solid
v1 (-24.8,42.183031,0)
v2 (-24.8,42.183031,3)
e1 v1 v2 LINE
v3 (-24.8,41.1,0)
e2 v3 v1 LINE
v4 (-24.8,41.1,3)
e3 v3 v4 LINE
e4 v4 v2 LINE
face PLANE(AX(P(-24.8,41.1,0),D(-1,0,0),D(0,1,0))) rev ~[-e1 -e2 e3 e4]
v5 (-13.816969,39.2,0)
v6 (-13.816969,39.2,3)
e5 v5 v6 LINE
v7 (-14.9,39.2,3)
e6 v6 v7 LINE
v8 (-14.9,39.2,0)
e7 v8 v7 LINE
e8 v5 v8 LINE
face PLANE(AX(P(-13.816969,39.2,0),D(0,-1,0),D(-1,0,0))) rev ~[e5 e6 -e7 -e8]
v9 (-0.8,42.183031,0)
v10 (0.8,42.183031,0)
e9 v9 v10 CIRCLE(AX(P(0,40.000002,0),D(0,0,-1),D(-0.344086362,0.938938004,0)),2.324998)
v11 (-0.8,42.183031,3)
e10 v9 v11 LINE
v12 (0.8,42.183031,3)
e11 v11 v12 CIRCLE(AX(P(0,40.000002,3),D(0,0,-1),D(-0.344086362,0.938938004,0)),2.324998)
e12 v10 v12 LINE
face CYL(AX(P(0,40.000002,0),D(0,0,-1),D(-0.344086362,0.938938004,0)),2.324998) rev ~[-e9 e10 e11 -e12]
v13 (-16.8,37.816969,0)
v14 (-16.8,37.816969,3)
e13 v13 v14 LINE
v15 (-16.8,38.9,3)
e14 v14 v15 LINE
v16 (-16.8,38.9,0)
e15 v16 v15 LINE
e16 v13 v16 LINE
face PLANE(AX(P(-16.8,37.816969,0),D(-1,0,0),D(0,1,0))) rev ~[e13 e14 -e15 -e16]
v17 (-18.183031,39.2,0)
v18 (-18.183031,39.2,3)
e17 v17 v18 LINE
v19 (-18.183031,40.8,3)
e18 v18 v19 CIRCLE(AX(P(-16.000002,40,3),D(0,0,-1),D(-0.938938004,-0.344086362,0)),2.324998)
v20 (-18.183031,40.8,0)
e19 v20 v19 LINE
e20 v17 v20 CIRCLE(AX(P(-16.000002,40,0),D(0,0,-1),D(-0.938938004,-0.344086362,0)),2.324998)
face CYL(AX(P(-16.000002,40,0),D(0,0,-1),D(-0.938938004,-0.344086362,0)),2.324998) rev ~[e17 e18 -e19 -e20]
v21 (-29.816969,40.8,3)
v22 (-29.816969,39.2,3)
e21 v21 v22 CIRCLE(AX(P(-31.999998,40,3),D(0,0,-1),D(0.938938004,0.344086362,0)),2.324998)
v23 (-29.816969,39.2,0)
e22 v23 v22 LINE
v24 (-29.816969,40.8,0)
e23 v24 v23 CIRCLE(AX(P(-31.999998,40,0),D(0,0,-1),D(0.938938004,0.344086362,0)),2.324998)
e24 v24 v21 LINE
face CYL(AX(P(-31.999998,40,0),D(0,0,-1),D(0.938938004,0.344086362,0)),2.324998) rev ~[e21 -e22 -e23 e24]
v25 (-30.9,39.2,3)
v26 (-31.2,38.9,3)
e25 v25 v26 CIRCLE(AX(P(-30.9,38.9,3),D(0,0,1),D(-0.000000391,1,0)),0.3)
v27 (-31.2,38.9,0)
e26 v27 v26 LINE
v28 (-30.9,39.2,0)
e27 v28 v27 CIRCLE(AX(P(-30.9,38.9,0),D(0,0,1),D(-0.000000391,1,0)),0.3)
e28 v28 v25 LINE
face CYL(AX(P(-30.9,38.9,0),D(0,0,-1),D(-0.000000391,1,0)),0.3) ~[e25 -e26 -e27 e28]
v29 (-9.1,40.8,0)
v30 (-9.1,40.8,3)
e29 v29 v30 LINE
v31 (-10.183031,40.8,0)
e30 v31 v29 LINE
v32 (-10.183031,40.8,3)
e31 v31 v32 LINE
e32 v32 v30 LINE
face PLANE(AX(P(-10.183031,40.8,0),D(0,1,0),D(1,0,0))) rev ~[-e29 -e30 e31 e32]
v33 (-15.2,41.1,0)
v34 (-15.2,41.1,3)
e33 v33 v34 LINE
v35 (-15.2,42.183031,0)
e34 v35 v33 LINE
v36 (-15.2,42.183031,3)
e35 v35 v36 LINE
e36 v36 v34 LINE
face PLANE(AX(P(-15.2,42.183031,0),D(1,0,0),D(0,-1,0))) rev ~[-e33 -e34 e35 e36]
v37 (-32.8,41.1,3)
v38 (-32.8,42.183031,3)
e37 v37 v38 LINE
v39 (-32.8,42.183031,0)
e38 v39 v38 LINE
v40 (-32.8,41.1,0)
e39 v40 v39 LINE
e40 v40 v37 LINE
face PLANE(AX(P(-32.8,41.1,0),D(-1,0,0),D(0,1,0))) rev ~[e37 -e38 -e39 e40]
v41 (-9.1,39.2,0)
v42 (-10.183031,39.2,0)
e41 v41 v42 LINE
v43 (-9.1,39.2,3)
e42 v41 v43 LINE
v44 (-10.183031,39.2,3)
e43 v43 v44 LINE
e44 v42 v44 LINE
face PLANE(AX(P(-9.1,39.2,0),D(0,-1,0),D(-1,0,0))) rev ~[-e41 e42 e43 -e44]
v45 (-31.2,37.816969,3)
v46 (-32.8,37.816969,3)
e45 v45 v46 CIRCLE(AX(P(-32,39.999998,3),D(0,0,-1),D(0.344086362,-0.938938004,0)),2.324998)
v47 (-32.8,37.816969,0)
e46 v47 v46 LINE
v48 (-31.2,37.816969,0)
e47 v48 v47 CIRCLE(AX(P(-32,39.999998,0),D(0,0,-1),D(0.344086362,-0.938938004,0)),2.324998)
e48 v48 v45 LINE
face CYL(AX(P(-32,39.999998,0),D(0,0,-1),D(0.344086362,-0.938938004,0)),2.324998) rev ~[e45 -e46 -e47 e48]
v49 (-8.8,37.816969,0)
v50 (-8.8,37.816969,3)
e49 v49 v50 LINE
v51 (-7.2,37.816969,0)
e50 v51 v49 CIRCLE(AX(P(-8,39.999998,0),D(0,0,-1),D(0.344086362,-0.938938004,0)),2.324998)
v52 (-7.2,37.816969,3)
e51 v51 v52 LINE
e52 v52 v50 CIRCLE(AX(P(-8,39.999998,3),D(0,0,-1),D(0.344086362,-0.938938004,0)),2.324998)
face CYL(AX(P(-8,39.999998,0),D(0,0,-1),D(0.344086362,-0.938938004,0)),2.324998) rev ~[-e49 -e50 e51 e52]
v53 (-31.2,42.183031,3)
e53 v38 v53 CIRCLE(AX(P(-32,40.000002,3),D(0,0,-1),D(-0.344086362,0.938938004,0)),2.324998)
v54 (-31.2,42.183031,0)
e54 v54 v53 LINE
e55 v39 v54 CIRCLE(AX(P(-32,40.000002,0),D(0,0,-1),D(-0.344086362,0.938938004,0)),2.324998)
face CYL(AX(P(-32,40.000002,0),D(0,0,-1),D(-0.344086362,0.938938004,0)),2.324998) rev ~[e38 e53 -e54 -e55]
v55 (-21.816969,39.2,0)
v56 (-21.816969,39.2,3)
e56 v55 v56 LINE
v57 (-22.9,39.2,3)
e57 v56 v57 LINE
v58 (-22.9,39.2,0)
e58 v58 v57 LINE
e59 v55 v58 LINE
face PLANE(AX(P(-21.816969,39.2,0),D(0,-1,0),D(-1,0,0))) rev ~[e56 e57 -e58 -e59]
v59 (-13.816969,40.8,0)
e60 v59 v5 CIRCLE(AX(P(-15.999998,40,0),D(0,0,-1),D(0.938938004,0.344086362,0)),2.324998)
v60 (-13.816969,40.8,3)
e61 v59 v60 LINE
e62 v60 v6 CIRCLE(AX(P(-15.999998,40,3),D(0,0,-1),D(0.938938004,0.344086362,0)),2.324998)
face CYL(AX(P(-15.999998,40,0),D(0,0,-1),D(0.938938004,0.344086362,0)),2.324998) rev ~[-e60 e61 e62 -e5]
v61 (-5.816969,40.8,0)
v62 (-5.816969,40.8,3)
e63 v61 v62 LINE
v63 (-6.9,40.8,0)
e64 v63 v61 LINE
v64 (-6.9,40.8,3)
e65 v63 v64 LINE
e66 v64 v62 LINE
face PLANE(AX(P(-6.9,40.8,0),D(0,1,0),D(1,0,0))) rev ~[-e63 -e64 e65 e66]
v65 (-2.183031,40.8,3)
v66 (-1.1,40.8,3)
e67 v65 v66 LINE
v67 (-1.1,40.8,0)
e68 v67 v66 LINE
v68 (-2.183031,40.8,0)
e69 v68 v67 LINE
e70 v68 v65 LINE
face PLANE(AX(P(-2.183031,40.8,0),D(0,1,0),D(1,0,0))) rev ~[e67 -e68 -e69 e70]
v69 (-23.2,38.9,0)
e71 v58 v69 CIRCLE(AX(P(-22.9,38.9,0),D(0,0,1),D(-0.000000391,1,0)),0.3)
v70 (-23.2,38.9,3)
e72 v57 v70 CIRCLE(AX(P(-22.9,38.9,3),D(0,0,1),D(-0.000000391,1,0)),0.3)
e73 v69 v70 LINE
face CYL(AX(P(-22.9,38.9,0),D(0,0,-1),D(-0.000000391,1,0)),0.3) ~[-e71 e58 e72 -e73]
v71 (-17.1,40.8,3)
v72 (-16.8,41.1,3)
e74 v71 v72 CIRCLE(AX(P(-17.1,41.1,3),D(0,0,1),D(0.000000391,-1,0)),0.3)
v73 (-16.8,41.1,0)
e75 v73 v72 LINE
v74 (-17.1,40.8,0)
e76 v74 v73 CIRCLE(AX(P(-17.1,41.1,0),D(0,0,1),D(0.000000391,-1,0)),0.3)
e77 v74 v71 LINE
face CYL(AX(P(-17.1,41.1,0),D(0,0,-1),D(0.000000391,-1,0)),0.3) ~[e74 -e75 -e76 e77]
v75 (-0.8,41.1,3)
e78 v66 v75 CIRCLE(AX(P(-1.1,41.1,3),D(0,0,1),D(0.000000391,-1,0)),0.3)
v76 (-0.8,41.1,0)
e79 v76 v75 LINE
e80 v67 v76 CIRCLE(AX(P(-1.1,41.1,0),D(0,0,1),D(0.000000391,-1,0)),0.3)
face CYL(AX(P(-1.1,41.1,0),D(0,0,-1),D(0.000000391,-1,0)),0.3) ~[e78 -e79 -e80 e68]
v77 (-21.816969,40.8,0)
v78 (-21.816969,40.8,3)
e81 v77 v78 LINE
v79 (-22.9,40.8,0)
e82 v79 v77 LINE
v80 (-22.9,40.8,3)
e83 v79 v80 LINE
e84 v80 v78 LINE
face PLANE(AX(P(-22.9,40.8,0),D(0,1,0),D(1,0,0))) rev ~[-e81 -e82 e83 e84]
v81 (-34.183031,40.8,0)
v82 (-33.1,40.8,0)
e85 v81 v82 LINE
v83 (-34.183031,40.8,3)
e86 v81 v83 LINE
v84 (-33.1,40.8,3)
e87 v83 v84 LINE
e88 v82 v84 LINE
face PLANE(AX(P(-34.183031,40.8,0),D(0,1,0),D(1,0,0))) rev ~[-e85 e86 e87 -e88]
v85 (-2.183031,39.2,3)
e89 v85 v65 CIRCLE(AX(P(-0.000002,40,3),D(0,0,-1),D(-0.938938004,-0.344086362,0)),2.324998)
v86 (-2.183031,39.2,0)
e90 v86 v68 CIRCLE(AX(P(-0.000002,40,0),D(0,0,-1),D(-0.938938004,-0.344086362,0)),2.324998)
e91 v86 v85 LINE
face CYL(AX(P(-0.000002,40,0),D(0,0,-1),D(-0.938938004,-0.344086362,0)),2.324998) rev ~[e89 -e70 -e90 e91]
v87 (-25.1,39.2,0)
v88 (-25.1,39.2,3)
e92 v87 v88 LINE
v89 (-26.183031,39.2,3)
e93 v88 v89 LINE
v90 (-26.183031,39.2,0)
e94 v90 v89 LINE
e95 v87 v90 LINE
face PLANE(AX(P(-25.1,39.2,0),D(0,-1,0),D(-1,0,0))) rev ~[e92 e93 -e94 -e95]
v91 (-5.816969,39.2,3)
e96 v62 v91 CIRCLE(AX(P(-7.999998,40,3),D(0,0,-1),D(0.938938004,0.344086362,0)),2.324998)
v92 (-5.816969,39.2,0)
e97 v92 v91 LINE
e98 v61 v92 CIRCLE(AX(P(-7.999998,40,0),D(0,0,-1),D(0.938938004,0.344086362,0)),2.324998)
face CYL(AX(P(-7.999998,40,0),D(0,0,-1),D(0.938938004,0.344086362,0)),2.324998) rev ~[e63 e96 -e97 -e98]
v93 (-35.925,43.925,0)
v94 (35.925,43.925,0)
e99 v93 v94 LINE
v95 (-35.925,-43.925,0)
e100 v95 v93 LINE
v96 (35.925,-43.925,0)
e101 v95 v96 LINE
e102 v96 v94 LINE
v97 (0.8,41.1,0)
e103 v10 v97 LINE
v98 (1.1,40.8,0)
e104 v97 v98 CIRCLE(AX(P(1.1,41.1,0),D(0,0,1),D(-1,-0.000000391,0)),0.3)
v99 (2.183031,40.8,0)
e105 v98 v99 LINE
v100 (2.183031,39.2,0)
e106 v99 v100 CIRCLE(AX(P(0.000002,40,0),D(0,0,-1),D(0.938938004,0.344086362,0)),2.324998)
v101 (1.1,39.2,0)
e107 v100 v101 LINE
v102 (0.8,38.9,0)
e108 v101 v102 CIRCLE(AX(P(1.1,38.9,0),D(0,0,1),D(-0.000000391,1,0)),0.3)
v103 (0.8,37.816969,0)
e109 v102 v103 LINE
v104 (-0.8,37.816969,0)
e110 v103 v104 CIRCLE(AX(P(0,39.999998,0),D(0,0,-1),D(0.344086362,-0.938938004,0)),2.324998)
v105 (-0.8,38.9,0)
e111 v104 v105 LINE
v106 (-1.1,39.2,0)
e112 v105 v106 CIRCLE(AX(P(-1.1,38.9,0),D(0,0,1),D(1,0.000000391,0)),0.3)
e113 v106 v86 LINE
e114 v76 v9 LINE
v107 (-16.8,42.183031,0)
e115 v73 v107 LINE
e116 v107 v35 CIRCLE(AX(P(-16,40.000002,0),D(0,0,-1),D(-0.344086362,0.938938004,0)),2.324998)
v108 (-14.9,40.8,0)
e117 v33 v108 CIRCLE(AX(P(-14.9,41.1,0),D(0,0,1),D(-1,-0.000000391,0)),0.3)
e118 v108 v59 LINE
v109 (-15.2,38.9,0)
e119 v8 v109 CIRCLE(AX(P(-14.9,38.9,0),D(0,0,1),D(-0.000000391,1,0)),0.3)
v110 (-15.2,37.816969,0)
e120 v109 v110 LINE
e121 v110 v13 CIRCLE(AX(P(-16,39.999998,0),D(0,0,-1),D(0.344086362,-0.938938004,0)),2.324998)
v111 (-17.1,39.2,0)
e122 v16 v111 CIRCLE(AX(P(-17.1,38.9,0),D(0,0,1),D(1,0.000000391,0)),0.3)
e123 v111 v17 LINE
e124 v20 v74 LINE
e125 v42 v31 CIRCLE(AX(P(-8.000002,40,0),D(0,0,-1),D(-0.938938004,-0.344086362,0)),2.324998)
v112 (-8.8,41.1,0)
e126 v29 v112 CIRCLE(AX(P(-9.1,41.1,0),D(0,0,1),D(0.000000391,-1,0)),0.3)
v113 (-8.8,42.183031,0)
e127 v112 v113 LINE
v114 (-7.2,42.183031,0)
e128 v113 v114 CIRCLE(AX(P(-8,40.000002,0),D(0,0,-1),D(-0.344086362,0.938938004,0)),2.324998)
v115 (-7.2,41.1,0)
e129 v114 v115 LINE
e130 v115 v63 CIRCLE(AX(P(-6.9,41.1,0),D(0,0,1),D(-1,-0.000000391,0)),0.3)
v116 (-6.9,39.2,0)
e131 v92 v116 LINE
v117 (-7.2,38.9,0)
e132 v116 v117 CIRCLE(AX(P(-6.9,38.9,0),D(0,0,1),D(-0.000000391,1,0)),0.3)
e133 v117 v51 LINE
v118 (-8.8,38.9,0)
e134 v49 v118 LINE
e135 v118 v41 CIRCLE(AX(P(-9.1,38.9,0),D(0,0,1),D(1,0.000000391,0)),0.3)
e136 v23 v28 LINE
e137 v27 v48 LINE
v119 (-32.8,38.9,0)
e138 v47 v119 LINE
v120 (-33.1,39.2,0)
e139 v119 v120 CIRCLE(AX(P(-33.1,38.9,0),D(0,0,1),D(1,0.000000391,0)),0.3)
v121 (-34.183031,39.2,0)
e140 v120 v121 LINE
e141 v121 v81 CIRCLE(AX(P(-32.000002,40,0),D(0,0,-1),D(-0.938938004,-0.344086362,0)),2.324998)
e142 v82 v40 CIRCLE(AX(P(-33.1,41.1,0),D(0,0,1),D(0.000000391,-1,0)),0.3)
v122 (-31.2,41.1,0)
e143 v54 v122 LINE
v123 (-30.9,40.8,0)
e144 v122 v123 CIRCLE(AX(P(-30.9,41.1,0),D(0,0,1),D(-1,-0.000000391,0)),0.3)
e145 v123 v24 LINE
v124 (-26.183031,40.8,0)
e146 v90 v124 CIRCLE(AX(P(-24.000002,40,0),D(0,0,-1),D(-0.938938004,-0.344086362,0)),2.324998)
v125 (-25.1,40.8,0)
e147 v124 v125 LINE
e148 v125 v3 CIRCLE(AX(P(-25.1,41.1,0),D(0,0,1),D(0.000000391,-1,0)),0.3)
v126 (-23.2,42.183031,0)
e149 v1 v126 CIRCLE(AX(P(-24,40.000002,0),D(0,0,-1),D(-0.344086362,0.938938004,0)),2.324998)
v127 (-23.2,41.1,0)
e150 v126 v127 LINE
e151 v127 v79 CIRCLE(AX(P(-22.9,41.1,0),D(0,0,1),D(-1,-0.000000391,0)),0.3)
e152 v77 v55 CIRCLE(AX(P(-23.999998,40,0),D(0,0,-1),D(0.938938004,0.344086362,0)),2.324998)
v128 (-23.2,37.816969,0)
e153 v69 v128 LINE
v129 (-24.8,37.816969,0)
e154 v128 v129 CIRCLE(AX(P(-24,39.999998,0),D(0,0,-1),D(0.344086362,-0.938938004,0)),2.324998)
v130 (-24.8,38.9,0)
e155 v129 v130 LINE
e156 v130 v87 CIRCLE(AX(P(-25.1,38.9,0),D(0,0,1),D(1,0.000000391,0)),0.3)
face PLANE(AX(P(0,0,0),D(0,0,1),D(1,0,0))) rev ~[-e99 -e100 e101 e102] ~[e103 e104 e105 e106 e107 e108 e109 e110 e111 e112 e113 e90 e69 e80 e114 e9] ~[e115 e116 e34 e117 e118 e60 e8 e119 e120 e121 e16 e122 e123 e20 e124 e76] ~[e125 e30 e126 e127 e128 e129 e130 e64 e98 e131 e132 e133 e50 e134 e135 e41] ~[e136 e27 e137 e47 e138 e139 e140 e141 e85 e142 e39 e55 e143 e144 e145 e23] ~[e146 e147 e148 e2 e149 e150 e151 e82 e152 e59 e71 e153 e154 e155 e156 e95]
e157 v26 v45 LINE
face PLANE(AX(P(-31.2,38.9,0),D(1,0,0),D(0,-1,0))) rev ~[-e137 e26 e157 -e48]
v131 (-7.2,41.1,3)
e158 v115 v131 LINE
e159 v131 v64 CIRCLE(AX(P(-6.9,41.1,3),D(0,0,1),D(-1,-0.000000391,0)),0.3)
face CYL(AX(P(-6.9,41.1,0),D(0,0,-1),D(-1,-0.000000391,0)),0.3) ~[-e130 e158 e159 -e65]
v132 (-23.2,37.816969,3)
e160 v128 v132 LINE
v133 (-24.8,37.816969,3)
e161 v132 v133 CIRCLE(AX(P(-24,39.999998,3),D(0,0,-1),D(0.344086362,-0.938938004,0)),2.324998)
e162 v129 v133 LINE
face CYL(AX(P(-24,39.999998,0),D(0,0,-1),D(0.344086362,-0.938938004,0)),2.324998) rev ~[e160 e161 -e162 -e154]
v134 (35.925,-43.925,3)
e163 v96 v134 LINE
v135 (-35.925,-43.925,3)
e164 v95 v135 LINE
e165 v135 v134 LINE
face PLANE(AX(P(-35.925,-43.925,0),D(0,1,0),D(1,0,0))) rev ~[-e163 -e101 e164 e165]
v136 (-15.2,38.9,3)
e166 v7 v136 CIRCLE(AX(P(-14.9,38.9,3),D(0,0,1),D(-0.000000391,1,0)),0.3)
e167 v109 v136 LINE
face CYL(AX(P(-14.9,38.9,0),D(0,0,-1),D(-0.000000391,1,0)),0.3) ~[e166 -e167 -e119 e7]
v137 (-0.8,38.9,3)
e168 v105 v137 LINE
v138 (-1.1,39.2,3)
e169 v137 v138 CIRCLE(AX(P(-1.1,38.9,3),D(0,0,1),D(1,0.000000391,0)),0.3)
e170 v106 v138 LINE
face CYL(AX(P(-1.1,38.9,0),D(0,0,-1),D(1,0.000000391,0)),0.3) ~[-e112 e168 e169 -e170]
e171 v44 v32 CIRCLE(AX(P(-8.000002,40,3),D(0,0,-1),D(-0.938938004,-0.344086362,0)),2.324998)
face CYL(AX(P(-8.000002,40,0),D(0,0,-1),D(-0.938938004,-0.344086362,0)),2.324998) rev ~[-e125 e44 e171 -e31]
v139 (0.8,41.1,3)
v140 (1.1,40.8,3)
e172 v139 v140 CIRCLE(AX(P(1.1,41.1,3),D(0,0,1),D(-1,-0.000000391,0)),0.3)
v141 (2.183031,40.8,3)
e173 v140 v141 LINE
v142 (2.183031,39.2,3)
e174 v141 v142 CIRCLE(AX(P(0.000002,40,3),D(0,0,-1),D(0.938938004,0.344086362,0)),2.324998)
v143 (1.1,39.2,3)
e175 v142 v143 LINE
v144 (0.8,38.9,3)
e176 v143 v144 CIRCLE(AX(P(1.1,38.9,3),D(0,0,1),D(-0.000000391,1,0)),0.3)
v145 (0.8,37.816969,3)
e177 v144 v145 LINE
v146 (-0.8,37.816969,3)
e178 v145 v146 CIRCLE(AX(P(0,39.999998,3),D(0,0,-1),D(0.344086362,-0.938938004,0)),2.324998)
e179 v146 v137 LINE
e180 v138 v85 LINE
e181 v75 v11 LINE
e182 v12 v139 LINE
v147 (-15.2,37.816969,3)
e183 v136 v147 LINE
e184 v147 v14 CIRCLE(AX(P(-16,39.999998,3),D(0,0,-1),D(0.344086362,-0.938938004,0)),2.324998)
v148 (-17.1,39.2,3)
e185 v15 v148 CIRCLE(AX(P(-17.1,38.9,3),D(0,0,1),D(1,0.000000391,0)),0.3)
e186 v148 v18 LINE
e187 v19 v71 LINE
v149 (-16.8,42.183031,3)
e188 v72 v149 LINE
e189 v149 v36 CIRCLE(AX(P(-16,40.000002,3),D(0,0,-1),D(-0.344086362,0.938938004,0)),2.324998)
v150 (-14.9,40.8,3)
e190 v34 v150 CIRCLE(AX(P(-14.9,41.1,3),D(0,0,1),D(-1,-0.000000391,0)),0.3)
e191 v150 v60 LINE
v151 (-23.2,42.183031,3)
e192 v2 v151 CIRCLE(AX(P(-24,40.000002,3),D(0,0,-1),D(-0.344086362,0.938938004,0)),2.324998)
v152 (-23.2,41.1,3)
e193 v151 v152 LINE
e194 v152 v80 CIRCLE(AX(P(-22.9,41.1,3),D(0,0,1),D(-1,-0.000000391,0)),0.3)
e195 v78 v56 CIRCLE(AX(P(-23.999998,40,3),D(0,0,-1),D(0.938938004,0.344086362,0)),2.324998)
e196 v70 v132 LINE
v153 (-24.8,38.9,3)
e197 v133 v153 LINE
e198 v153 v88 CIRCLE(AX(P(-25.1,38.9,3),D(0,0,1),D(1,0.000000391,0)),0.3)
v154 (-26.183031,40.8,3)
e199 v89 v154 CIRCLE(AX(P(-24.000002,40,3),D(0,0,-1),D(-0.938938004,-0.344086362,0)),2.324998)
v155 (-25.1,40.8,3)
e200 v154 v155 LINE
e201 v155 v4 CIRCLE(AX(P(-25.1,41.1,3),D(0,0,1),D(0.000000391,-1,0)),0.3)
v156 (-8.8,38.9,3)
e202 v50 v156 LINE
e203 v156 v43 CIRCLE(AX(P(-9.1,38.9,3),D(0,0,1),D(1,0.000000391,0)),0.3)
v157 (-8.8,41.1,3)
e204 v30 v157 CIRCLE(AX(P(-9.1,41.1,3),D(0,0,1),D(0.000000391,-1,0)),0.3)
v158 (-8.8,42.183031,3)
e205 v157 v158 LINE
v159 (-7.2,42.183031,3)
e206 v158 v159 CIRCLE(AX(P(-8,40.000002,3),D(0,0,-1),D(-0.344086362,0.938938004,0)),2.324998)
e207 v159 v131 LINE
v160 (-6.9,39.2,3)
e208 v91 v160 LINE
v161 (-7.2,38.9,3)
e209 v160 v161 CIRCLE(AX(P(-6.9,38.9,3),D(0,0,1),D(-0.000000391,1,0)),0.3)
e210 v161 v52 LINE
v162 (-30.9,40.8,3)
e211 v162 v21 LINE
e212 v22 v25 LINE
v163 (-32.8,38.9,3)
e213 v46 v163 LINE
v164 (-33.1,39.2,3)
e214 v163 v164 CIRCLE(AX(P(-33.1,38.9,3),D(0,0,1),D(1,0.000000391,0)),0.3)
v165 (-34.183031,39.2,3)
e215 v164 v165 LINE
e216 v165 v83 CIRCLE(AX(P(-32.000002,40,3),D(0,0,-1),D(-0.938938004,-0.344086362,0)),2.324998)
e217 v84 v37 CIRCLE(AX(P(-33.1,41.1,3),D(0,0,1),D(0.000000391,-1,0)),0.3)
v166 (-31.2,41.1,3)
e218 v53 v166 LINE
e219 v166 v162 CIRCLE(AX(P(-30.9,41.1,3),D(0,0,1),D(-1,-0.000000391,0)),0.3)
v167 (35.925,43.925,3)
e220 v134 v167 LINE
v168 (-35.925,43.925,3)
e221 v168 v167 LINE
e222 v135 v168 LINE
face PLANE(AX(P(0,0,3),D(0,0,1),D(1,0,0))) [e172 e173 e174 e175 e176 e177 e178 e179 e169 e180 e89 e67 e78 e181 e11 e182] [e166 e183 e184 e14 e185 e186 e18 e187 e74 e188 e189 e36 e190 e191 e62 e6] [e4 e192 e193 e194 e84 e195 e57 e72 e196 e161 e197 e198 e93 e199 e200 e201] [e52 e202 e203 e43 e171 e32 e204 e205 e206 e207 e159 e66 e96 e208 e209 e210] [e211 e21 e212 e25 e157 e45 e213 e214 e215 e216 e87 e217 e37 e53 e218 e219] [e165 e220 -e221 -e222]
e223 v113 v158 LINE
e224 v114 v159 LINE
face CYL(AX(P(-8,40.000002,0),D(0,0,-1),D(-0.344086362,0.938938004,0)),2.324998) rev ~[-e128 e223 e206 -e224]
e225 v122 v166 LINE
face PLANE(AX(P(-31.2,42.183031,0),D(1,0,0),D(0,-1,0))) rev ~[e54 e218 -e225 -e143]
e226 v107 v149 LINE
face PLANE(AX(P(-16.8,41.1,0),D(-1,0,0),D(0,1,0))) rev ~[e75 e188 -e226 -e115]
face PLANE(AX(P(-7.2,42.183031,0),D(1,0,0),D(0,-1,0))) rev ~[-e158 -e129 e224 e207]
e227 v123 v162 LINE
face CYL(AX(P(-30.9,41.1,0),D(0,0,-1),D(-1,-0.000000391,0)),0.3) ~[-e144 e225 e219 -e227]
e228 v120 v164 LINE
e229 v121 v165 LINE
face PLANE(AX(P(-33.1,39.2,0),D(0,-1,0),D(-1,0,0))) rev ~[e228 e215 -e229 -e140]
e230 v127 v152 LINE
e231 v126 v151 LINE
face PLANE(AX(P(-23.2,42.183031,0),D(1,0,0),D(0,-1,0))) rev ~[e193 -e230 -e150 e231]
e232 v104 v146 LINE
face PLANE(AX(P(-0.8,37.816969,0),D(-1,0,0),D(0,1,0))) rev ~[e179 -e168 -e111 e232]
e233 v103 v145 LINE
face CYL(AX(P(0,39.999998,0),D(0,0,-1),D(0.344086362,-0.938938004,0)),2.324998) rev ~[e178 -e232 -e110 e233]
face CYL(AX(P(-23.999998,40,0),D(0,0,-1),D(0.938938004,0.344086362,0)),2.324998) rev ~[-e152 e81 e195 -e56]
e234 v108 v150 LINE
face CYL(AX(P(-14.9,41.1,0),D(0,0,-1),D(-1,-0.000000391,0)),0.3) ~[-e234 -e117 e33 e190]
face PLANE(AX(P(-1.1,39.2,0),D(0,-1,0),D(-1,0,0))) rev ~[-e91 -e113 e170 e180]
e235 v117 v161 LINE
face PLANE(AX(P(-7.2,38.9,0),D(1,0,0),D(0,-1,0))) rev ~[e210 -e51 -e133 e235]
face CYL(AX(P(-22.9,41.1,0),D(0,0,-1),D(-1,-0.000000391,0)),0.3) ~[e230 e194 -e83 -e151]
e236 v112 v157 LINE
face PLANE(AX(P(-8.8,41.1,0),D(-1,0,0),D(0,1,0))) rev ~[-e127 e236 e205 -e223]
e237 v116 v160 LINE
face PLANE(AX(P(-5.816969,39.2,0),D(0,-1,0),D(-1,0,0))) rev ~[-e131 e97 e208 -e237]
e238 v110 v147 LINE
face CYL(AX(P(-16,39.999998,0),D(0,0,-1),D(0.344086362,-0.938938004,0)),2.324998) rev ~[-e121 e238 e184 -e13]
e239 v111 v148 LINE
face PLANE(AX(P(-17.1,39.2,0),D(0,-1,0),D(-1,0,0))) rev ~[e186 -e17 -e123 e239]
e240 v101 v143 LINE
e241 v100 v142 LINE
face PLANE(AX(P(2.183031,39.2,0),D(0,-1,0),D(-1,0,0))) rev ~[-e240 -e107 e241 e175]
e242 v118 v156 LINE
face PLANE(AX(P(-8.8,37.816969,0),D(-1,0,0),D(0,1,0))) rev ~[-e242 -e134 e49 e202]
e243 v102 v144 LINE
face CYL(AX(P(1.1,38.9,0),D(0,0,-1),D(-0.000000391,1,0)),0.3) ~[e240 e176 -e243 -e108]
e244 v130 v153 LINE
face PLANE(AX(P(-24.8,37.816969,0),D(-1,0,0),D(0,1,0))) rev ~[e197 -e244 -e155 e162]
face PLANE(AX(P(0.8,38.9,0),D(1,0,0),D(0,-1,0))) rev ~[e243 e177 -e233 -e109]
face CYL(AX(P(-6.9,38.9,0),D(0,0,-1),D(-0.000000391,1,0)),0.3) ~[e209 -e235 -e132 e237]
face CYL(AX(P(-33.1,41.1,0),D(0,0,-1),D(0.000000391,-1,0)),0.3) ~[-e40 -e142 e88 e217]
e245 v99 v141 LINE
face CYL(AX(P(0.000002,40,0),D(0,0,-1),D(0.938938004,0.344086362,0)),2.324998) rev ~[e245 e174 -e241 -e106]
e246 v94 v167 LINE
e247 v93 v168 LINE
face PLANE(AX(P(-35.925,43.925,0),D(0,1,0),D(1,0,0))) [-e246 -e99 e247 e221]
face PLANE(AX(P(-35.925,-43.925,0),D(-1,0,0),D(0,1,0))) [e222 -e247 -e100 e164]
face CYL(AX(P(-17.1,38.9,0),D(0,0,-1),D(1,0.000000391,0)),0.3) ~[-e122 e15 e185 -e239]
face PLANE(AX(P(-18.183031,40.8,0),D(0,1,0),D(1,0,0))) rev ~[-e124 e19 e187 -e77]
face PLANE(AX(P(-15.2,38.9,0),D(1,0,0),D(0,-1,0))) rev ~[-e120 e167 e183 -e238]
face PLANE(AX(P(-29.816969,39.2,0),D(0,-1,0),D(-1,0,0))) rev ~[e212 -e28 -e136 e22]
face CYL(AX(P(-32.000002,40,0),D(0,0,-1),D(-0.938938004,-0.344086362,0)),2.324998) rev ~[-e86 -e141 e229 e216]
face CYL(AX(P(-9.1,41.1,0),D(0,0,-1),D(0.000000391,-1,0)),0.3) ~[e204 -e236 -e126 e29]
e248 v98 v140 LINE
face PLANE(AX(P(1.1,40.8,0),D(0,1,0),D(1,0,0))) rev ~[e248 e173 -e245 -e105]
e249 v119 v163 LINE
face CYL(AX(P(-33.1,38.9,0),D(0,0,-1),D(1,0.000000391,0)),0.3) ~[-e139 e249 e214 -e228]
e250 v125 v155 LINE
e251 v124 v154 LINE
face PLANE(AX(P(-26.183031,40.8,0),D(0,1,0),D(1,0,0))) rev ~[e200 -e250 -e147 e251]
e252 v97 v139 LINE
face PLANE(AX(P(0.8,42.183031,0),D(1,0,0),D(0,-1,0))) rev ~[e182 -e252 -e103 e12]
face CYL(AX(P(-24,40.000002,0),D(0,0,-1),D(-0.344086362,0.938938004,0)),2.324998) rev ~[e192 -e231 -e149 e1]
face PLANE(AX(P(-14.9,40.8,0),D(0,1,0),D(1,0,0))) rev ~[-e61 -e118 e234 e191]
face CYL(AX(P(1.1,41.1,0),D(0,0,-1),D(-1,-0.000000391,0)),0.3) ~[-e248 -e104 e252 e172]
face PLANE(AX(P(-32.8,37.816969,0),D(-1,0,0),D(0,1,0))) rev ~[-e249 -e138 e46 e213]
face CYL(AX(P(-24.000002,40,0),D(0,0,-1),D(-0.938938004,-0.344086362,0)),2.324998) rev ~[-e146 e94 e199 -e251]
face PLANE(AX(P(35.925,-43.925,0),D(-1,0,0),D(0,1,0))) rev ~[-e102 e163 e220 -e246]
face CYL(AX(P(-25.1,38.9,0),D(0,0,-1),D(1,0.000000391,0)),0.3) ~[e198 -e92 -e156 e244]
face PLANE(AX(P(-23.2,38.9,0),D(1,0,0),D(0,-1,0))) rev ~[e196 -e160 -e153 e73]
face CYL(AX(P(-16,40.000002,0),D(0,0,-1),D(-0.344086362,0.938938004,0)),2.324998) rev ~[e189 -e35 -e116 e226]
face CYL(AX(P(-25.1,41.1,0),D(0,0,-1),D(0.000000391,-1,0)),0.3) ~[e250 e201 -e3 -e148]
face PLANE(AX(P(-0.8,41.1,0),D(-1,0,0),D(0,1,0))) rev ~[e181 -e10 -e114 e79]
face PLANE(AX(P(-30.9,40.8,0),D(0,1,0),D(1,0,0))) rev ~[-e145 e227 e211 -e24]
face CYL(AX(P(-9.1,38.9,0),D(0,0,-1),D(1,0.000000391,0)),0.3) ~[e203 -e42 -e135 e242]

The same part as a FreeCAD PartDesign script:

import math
import FreeCAD as App
import Part
import Sketcher

V = App.Vector

doc = App.newDocument("Part")
body = doc.addObject("PartDesign::Body", "Body")

# Sketch on XY plane
sketch1 = body.newObject("Sketcher::SketchObject", "Sketch")
sketch1.AttachmentSupport = (doc.getObject("XY_Plane"), [""])
sketch1.MapMode = "FlatFace"
sketch1.addGeometry(Part.LineSegment(V(-35.925, 43.925, 0), V(-35.925, -43.925, 0)), False)
sketch1.addGeometry(Part.LineSegment(V(-35.925, -43.925, 0), V(35.925, -43.925, 0)), False)
sketch1.addGeometry(Part.LineSegment(V(35.925, -43.925, 0), V(35.925, 43.925, 0)), False)
sketch1.addGeometry(Part.LineSegment(V(35.925, 43.925, 0), V(-35.925, 43.925, 0)), False)
sketch1.addGeometry(Part.LineSegment(V(-32.8, 41.1, 0), V(-32.8, 42.183031, 0)), False)
sketch1.addGeometry(Part.ArcOfCircle(Part.Circle(V(-32, 40.000002, 0), V(0, 0, 1), 2.324998), math.radians(69.873966), math.radians(110.126034)), False)
sketch1.addGeometry(Part.LineSegment(V(-31.2, 42.183031, 0), V(-31.2, 41.1, 0)), False)
sketch1.addGeometry(Part.ArcOfCircle(Part.Circle(V(-30.9, 41.1, 0), V(0, 0, 1), 0.3), math.radians(-179.999978), math.radians(-90.000022)), False)
sketch1.addGeometry(Part.LineSegment(V(-30.9, 40.8, 0), V(-29.816969, 40.8, 0)), False)
sketch1.addGeometry(Part.ArcOfCircle(Part.Circle(V(-31.999998, 40, 0), V(0, 0, 1), 2.324998), math.radians(-20.126034), math.radians(20.126034)), False)
sketch1.addGeometry(Part.LineSegment(V(-29.816969, 39.2, 0), V(-30.9, 39.2, 0)), False)
sketch1.addGeometry(Part.ArcOfCircle(Part.Circle(V(-30.9, 38.9, 0), V(0, 0, 1), 0.3), math.radians(90.000022), math.radians(179.999978)), False)
sketch1.addGeometry(Part.LineSegment(V(-31.2, 38.9, 0), V(-31.2, 37.816969, 0)), False)
sketch1.addGeometry(Part.ArcOfCircle(Part.Circle(V(-32, 39.999998, 0), V(0, 0, 1), 2.324998), math.radians(-110.126034), math.radians(-69.873966)), False)
sketch1.addGeometry(Part.LineSegment(V(-32.8, 37.816969, 0), V(-32.8, 38.9, 0)), False)
sketch1.addGeometry(Part.ArcOfCircle(Part.Circle(V(-33.1, 38.9, 0), V(0, 0, 1), 0.3), math.radians(0.000022), math.radians(89.999978)), False)
sketch1.addGeometry(Part.LineSegment(V(-33.1, 39.2, 0), V(-34.183031, 39.2, 0)), False)
sketch1.addGeometry(Part.ArcOfCircle(Part.Circle(V(-32.000002, 40, 0), V(0, 0, 1), 2.324998), math.radians(159.873966), math.radians(200.126034)), False)
sketch1.addGeometry(Part.LineSegment(V(-34.183031, 40.8, 0), V(-33.1, 40.8, 0)), False)
sketch1.addGeometry(Part.ArcOfCircle(Part.Circle(V(-33.1, 41.1, 0), V(0, 0, 1), 0.3), math.radians(-89.999978), math.radians(-0.000022)), False)
sketch1.addGeometry(Part.LineSegment(V(-24.8, 41.1, 0), V(-24.8, 42.183031, 0)), False)
sketch1.addGeometry(Part.ArcOfCircle(Part.Circle(V(-24, 40.000002, 0), V(0, 0, 1), 2.324998), math.radians(69.873966), math.radians(110.126034)), False)
sketch1.addGeometry(Part.LineSegment(V(-23.2, 42.183031, 0), V(-23.2, 41.1, 0)), False)
sketch1.addGeometry(Part.ArcOfCircle(Part.Circle(V(-22.9, 41.1, 0), V(0, 0, 1), 0.3), math.radians(-179.999978), math.radians(-90.000022)), False)
sketch1.addGeometry(Part.LineSegment(V(-22.9, 40.8, 0), V(-21.816969, 40.8, 0)), False)
sketch1.addGeometry(Part.ArcOfCircle(Part.Circle(V(-23.999998, 40, 0), V(0, 0, 1), 2.324998), math.radians(-20.126034), math.radians(20.126034)), False)
sketch1.addGeometry(Part.LineSegment(V(-21.816969, 39.2, 0), V(-22.9, 39.2, 0)), False)
sketch1.addGeometry(Part.ArcOfCircle(Part.Circle(V(-22.9, 38.9, 0), V(0, 0, 1), 0.3), math.radians(90.000022), math.radians(179.999978)), False)
sketch1.addGeometry(Part.LineSegment(V(-23.2, 38.9, 0), V(-23.2, 37.816969, 0)), False)
sketch1.addGeometry(Part.ArcOfCircle(Part.Circle(V(-24, 39.999998, 0), V(0, 0, 1), 2.324998), math.radians(-110.126034), math.radians(-69.873966)), False)
sketch1.addGeometry(Part.LineSegment(V(-24.8, 37.816969, 0), V(-24.8, 38.9, 0)), False)
sketch1.addGeometry(Part.ArcOfCircle(Part.Circle(V(-25.1, 38.9, 0), V(0, 0, 1), 0.3), math.radians(0.000022), math.radians(89.999978)), False)
sketch1.addGeometry(Part.LineSegment(V(-25.1, 39.2, 0), V(-26.183031, 39.2, 0)), False)
sketch1.addGeometry(Part.ArcOfCircle(Part.Circle(V(-24.000002, 40, 0), V(0, 0, 1), 2.324998), math.radians(159.873966), math.radians(200.126034)), False)
sketch1.addGeometry(Part.LineSegment(V(-26.183031, 40.8, 0), V(-25.1, 40.8, 0)), False)
sketch1.addGeometry(Part.ArcOfCircle(Part.Circle(V(-25.1, 41.1, 0), V(0, 0, 1), 0.3), math.radians(-89.999978), math.radians(-0.000022)), False)
sketch1.addGeometry(Part.LineSegment(V(-16.8, 41.1, 0), V(-16.8, 42.183031, 0)), False)
sketch1.addGeometry(Part.ArcOfCircle(Part.Circle(V(-16, 40.000002, 0), V(0, 0, 1), 2.324998), math.radians(69.873966), math.radians(110.126034)), False)
sketch1.addGeometry(Part.LineSegment(V(-15.2, 42.183031, 0), V(-15.2, 41.1, 0)), False)
sketch1.addGeometry(Part.ArcOfCircle(Part.Circle(V(-14.9, 41.1, 0), V(0, 0, 1), 0.3), math.radians(-179.999978), math.radians(-90.000022)), False)
sketch1.addGeometry(Part.LineSegment(V(-14.9, 40.8, 0), V(-13.816969, 40.8, 0)), False)
sketch1.addGeometry(Part.ArcOfCircle(Part.Circle(V(-15.999998, 40, 0), V(0, 0, 1), 2.324998), math.radians(-20.126034), math.radians(20.126034)), False)
sketch1.addGeometry(Part.LineSegment(V(-13.816969, 39.2, 0), V(-14.9, 39.2, 0)), False)
sketch1.addGeometry(Part.ArcOfCircle(Part.Circle(V(-14.9, 38.9, 0), V(0, 0, 1), 0.3), math.radians(90.000022), math.radians(179.999978)), False)
sketch1.addGeometry(Part.LineSegment(V(-15.2, 38.9, 0), V(-15.2, 37.816969, 0)), False)
sketch1.addGeometry(Part.ArcOfCircle(Part.Circle(V(-16, 39.999998, 0), V(0, 0, 1), 2.324998), math.radians(-110.126034), math.radians(-69.873966)), False)
sketch1.addGeometry(Part.LineSegment(V(-16.8, 37.816969, 0), V(-16.8, 38.9, 0)), False)
sketch1.addGeometry(Part.ArcOfCircle(Part.Circle(V(-17.1, 38.9, 0), V(0, 0, 1), 0.3), math.radians(0.000022), math.radians(89.999978)), False)
sketch1.addGeometry(Part.LineSegment(V(-17.1, 39.2, 0), V(-18.183031, 39.2, 0)), False)
sketch1.addGeometry(Part.ArcOfCircle(Part.Circle(V(-16.000002, 40, 0), V(0, 0, 1), 2.324998), math.radians(159.873966), math.radians(200.126034)), False)
sketch1.addGeometry(Part.LineSegment(V(-18.183031, 40.8, 0), V(-17.1, 40.8, 0)), False)
sketch1.addGeometry(Part.ArcOfCircle(Part.Circle(V(-17.1, 41.1, 0), V(0, 0, 1), 0.3), math.radians(-89.999978), math.radians(-0.000022)), False)
sketch1.addGeometry(Part.LineSegment(V(-8.8, 41.1, 0), V(-8.8, 42.183031, 0)), False)
sketch1.addGeometry(Part.ArcOfCircle(Part.Circle(V(-8, 40.000002, 0), V(0, 0, 1), 2.324998), math.radians(69.873966), math.radians(110.126034)), False)
sketch1.addGeometry(Part.LineSegment(V(-7.2, 42.183031, 0), V(-7.2, 41.1, 0)), False)
sketch1.addGeometry(Part.ArcOfCircle(Part.Circle(V(-6.9, 41.1, 0), V(0, 0, 1), 0.3), math.radians(-179.999978), math.radians(-90.000022)), False)
sketch1.addGeometry(Part.LineSegment(V(-6.9, 40.8, 0), V(-5.816969, 40.8, 0)), False)
sketch1.addGeometry(Part.ArcOfCircle(Part.Circle(V(-7.999998, 40, 0), V(0, 0, 1), 2.324998), math.radians(-20.126034), math.radians(20.126034)), False)
sketch1.addGeometry(Part.LineSegment(V(-5.816969, 39.2, 0), V(-6.9, 39.2, 0)), False)
sketch1.addGeometry(Part.ArcOfCircle(Part.Circle(V(-6.9, 38.9, 0), V(0, 0, 1), 0.3), math.radians(90.000022), math.radians(179.999978)), False)
sketch1.addGeometry(Part.LineSegment(V(-7.2, 38.9, 0), V(-7.2, 37.816969, 0)), False)
sketch1.addGeometry(Part.ArcOfCircle(Part.Circle(V(-8, 39.999998, 0), V(0, 0, 1), 2.324998), math.radians(-110.126034), math.radians(-69.873966)), False)
sketch1.addGeometry(Part.LineSegment(V(-8.8, 37.816969, 0), V(-8.8, 38.9, 0)), False)
sketch1.addGeometry(Part.ArcOfCircle(Part.Circle(V(-9.1, 38.9, 0), V(0, 0, 1), 0.3), math.radians(0.000022), math.radians(89.999978)), False)
sketch1.addGeometry(Part.LineSegment(V(-9.1, 39.2, 0), V(-10.183031, 39.2, 0)), False)
sketch1.addGeometry(Part.ArcOfCircle(Part.Circle(V(-8.000002, 40, 0), V(0, 0, 1), 2.324998), math.radians(159.873966), math.radians(200.126034)), False)
sketch1.addGeometry(Part.LineSegment(V(-10.183031, 40.8, 0), V(-9.1, 40.8, 0)), False)
sketch1.addGeometry(Part.ArcOfCircle(Part.Circle(V(-9.1, 41.1, 0), V(0, 0, 1), 0.3), math.radians(-89.999978), math.radians(-0.000022)), False)
sketch1.addGeometry(Part.LineSegment(V(-0.8, 41.1, 0), V(-0.8, 42.183031, 0)), False)
sketch1.addGeometry(Part.ArcOfCircle(Part.Circle(V(0, 40.000002, 0), V(0, 0, 1), 2.324998), math.radians(69.873966), math.radians(110.126034)), False)
sketch1.addGeometry(Part.LineSegment(V(0.8, 42.183031, 0), V(0.8, 41.1, 0)), False)
sketch1.addGeometry(Part.ArcOfCircle(Part.Circle(V(1.1, 41.1, 0), V(0, 0, 1), 0.3), math.radians(-179.999978), math.radians(-90.000022)), False)
sketch1.addGeometry(Part.LineSegment(V(1.1, 40.8, 0), V(2.183031, 40.8, 0)), False)
sketch1.addGeometry(Part.ArcOfCircle(Part.Circle(V(0.000002, 40, 0), V(0, 0, 1), 2.324998), math.radians(-20.126034), math.radians(20.126034)), False)
sketch1.addGeometry(Part.LineSegment(V(2.183031, 39.2, 0), V(1.1, 39.2, 0)), False)
sketch1.addGeometry(Part.ArcOfCircle(Part.Circle(V(1.1, 38.9, 0), V(0, 0, 1), 0.3), math.radians(90.000022), math.radians(179.999978)), False)
sketch1.addGeometry(Part.LineSegment(V(0.8, 38.9, 0), V(0.8, 37.816969, 0)), False)
sketch1.addGeometry(Part.ArcOfCircle(Part.Circle(V(0, 39.999998, 0), V(0, 0, 1), 2.324998), math.radians(-110.126034), math.radians(-69.873966)), False)
sketch1.addGeometry(Part.LineSegment(V(-0.8, 37.816969, 0), V(-0.8, 38.9, 0)), False)
sketch1.addGeometry(Part.ArcOfCircle(Part.Circle(V(-1.1, 38.9, 0), V(0, 0, 1), 0.3), math.radians(0.000022), math.radians(89.999978)), False)
sketch1.addGeometry(Part.LineSegment(V(-1.1, 39.2, 0), V(-2.183031, 39.2, 0)), False)
sketch1.addGeometry(Part.ArcOfCircle(Part.Circle(V(-0.000002, 40, 0), V(0, 0, 1), 2.324998), math.radians(159.873966), math.radians(200.126034)), False)
sketch1.addGeometry(Part.LineSegment(V(-2.183031, 40.8, 0), V(-1.1, 40.8, 0)), False)
sketch1.addGeometry(Part.ArcOfCircle(Part.Circle(V(-1.1, 41.1, 0), V(0, 0, 1), 0.3), math.radians(-89.999978), math.radians(-0.000022)), False)
sketch1.addConstraint(Sketcher.Constraint("Coincident", 0, 2, 1, 1))
sketch1.addConstraint(Sketcher.Constraint("Coincident", 1, 2, 2, 1))
sketch1.addConstraint(Sketcher.Constraint("Coincident", 2, 2, 3, 1))
sketch1.addConstraint(Sketcher.Constraint("Coincident", 3, 2, 0, 1))
sketch1.addConstraint(Sketcher.Constraint("Coincident", 4, 2, 5, 2))
sketch1.addConstraint(Sketcher.Constraint("Coincident", 5, 1, 6, 1))
sketch1.addConstraint(Sketcher.Constraint("Tangent", 6, 2, 7, 1))
sketch1.addConstraint(Sketcher.Constraint("Tangent", 7, 2, 8, 1))
sketch1.addConstraint(Sketcher.Constraint("Coincident", 8, 2, 9, 2))
sketch1.addConstraint(Sketcher.Constraint("Coincident", 9, 1, 10, 1))
sketch1.addConstraint(Sketcher.Constraint("Tangent", 10, 2, 11, 1))
sketch1.addConstraint(Sketcher.Constraint("Tangent", 11, 2, 12, 1))
sketch1.addConstraint(Sketcher.Constraint("Coincident", 12, 2, 13, 2))
sketch1.addConstraint(Sketcher.Constraint("Coincident", 13, 1, 14, 1))
sketch1.addConstraint(Sketcher.Constraint("Tangent", 14, 2, 15, 1))
sketch1.addConstraint(Sketcher.Constraint("Tangent", 15, 2, 16, 1))
sketch1.addConstraint(Sketcher.Constraint("Coincident", 16, 2, 17, 2))
sketch1.addConstraint(Sketcher.Constraint("Coincident", 17, 1, 18, 1))
sketch1.addConstraint(Sketcher.Constraint("Tangent", 18, 2, 19, 1))
sketch1.addConstraint(Sketcher.Constraint("Tangent", 19, 2, 4, 1))
sketch1.addConstraint(Sketcher.Constraint("Coincident", 20, 2, 21, 2))
sketch1.addConstraint(Sketcher.Constraint("Coincident", 21, 1, 22, 1))
sketch1.addConstraint(Sketcher.Constraint("Tangent", 22, 2, 23, 1))
sketch1.addConstraint(Sketcher.Constraint("Tangent", 23, 2, 24, 1))
sketch1.addConstraint(Sketcher.Constraint("Coincident", 24, 2, 25, 2))
sketch1.addConstraint(Sketcher.Constraint("Coincident", 25, 1, 26, 1))
sketch1.addConstraint(Sketcher.Constraint("Tangent", 26, 2, 27, 1))
sketch1.addConstraint(Sketcher.Constraint("Tangent", 27, 2, 28, 1))
sketch1.addConstraint(Sketcher.Constraint("Coincident", 28, 2, 29, 2))
sketch1.addConstraint(Sketcher.Constraint("Coincident", 29, 1, 30, 1))
sketch1.addConstraint(Sketcher.Constraint("Tangent", 30, 2, 31, 1))
sketch1.addConstraint(Sketcher.Constraint("Tangent", 31, 2, 32, 1))
sketch1.addConstraint(Sketcher.Constraint("Coincident", 32, 2, 33, 2))
sketch1.addConstraint(Sketcher.Constraint("Coincident", 33, 1, 34, 1))
sketch1.addConstraint(Sketcher.Constraint("Tangent", 34, 2, 35, 1))
sketch1.addConstraint(Sketcher.Constraint("Tangent", 35, 2, 20, 1))
sketch1.addConstraint(Sketcher.Constraint("Coincident", 36, 2, 37, 2))
sketch1.addConstraint(Sketcher.Constraint("Coincident", 37, 1, 38, 1))
sketch1.addConstraint(Sketcher.Constraint("Tangent", 38, 2, 39, 1))
sketch1.addConstraint(Sketcher.Constraint("Tangent", 39, 2, 40, 1))
sketch1.addConstraint(Sketcher.Constraint("Coincident", 40, 2, 41, 2))
sketch1.addConstraint(Sketcher.Constraint("Coincident", 41, 1, 42, 1))
sketch1.addConstraint(Sketcher.Constraint("Tangent", 42, 2, 43, 1))
sketch1.addConstraint(Sketcher.Constraint("Tangent", 43, 2, 44, 1))
sketch1.addConstraint(Sketcher.Constraint("Coincident", 44, 2, 45, 2))
sketch1.addConstraint(Sketcher.Constraint("Coincident", 45, 1, 46, 1))
sketch1.addConstraint(Sketcher.Constraint("Tangent", 46, 2, 47, 1))
sketch1.addConstraint(Sketcher.Constraint("Tangent", 47, 2, 48, 1))
sketch1.addConstraint(Sketcher.Constraint("Coincident", 48, 2, 49, 2))
sketch1.addConstraint(Sketcher.Constraint("Coincident", 49, 1, 50, 1))
sketch1.addConstraint(Sketcher.Constraint("Tangent", 50, 2, 51, 1))
sketch1.addConstraint(Sketcher.Constraint("Tangent", 51, 2, 36, 1))
sketch1.addConstraint(Sketcher.Constraint("Coincident", 52, 2, 53, 2))
sketch1.addConstraint(Sketcher.Constraint("Coincident", 53, 1, 54, 1))
sketch1.addConstraint(Sketcher.Constraint("Tangent", 54, 2, 55, 1))
sketch1.addConstraint(Sketcher.Constraint("Tangent", 55, 2, 56, 1))
sketch1.addConstraint(Sketcher.Constraint("Coincident", 56, 2, 57, 2))
sketch1.addConstraint(Sketcher.Constraint("Coincident", 57, 1, 58, 1))
sketch1.addConstraint(Sketcher.Constraint("Tangent", 58, 2, 59, 1))
sketch1.addConstraint(Sketcher.Constraint("Tangent", 59, 2, 60, 1))
sketch1.addConstraint(Sketcher.Constraint("Coincident", 60, 2, 61, 2))
sketch1.addConstraint(Sketcher.Constraint("Coincident", 61, 1, 62, 1))
sketch1.addConstraint(Sketcher.Constraint("Tangent", 62, 2, 63, 1))
sketch1.addConstraint(Sketcher.Constraint("Tangent", 63, 2, 64, 1))
sketch1.addConstraint(Sketcher.Constraint("Coincident", 64, 2, 65, 2))
sketch1.addConstraint(Sketcher.Constraint("Coincident", 65, 1, 66, 1))
sketch1.addConstraint(Sketcher.Constraint("Tangent", 66, 2, 67, 1))
sketch1.addConstraint(Sketcher.Constraint("Tangent", 67, 2, 52, 1))
sketch1.addConstraint(Sketcher.Constraint("Coincident", 68, 2, 69, 2))
sketch1.addConstraint(Sketcher.Constraint("Coincident", 69, 1, 70, 1))
sketch1.addConstraint(Sketcher.Constraint("Tangent", 70, 2, 71, 1))
sketch1.addConstraint(Sketcher.Constraint("Tangent", 71, 2, 72, 1))
sketch1.addConstraint(Sketcher.Constraint("Coincident", 72, 2, 73, 2))
sketch1.addConstraint(Sketcher.Constraint("Coincident", 73, 1, 74, 1))
sketch1.addConstraint(Sketcher.Constraint("Tangent", 74, 2, 75, 1))
sketch1.addConstraint(Sketcher.Constraint("Tangent", 75, 2, 76, 1))
sketch1.addConstraint(Sketcher.Constraint("Coincident", 76, 2, 77, 2))
sketch1.addConstraint(Sketcher.Constraint("Coincident", 77, 1, 78, 1))
sketch1.addConstraint(Sketcher.Constraint("Tangent", 78, 2, 79, 1))
sketch1.addConstraint(Sketcher.Constraint("Tangent", 79, 2, 80, 1))
sketch1.addConstraint(Sketcher.Constraint("Coincident", 80, 2, 81, 2))
sketch1.addConstraint(Sketcher.Constraint("Coincident", 81, 1, 82, 1))
sketch1.addConstraint(Sketcher.Constraint("Tangent", 82, 2, 83, 1))
sketch1.addConstraint(Sketcher.Constraint("Tangent", 83, 2, 68, 1))
sketch1.addConstraint(Sketcher.Constraint("Vertical", 0))
sketch1.addConstraint(Sketcher.Constraint("Horizontal", 1))
sketch1.addConstraint(Sketcher.Constraint("Vertical", 2))
sketch1.addConstraint(Sketcher.Constraint("Horizontal", 3))
sketch1.addConstraint(Sketcher.Constraint("Vertical", 4))
sketch1.addConstraint(Sketcher.Constraint("Vertical", 6))
sketch1.addConstraint(Sketcher.Constraint("Horizontal", 8))
sketch1.addConstraint(Sketcher.Constraint("Horizontal", 10))
sketch1.addConstraint(Sketcher.Constraint("Vertical", 12))
sketch1.addConstraint(Sketcher.Constraint("Vertical", 14))
sketch1.addConstraint(Sketcher.Constraint("Horizontal", 16))
sketch1.addConstraint(Sketcher.Constraint("Horizontal", 18))
sketch1.addConstraint(Sketcher.Constraint("Vertical", 20))
sketch1.addConstraint(Sketcher.Constraint("Vertical", 22))
sketch1.addConstraint(Sketcher.Constraint("Horizontal", 24))
sketch1.addConstraint(Sketcher.Constraint("Horizontal", 26))
sketch1.addConstraint(Sketcher.Constraint("Vertical", 28))
sketch1.addConstraint(Sketcher.Constraint("Vertical", 30))
sketch1.addConstraint(Sketcher.Constraint("Horizontal", 32))
sketch1.addConstraint(Sketcher.Constraint("Horizontal", 34))
sketch1.addConstraint(Sketcher.Constraint("Vertical", 36))
sketch1.addConstraint(Sketcher.Constraint("Vertical", 38))
sketch1.addConstraint(Sketcher.Constraint("Horizontal", 40))
sketch1.addConstraint(Sketcher.Constraint("Horizontal", 42))
sketch1.addConstraint(Sketcher.Constraint("Vertical", 44))
sketch1.addConstraint(Sketcher.Constraint("Vertical", 46))
sketch1.addConstraint(Sketcher.Constraint("Horizontal", 48))
sketch1.addConstraint(Sketcher.Constraint("Horizontal", 50))
sketch1.addConstraint(Sketcher.Constraint("Vertical", 52))
sketch1.addConstraint(Sketcher.Constraint("Vertical", 54))
sketch1.addConstraint(Sketcher.Constraint("Horizontal", 56))
sketch1.addConstraint(Sketcher.Constraint("Horizontal", 58))
sketch1.addConstraint(Sketcher.Constraint("Vertical", 60))
sketch1.addConstraint(Sketcher.Constraint("Vertical", 62))
sketch1.addConstraint(Sketcher.Constraint("Horizontal", 64))
sketch1.addConstraint(Sketcher.Constraint("Horizontal", 66))
sketch1.addConstraint(Sketcher.Constraint("Vertical", 68))
sketch1.addConstraint(Sketcher.Constraint("Vertical", 70))
sketch1.addConstraint(Sketcher.Constraint("Horizontal", 72))
sketch1.addConstraint(Sketcher.Constraint("Horizontal", 74))
sketch1.addConstraint(Sketcher.Constraint("Vertical", 76))
sketch1.addConstraint(Sketcher.Constraint("Vertical", 78))
sketch1.addConstraint(Sketcher.Constraint("Horizontal", 80))
sketch1.addConstraint(Sketcher.Constraint("Horizontal", 82))
sketch1.addConstraint(Sketcher.Constraint("Coincident", 9, 3, 5, 3))
sketch1.addConstraint(Sketcher.Constraint("Coincident", 13, 3, 5, 3))
sketch1.addConstraint(Sketcher.Constraint("Coincident", 17, 3, 5, 3))
sketch1.addConstraint(Sketcher.Constraint("Coincident", 25, 3, 21, 3))
sketch1.addConstraint(Sketcher.Constraint("Coincident", 29, 3, 21, 3))
sketch1.addConstraint(Sketcher.Constraint("Coincident", 33, 3, 21, 3))
sketch1.addConstraint(Sketcher.Constraint("Coincident", 41, 3, 37, 3))
sketch1.addConstraint(Sketcher.Constraint("Coincident", 45, 3, 37, 3))
sketch1.addConstraint(Sketcher.Constraint("Coincident", 49, 3, 37, 3))
sketch1.addConstraint(Sketcher.Constraint("Coincident", 57, 3, 53, 3))
sketch1.addConstraint(Sketcher.Constraint("Coincident", 61, 3, 53, 3))
sketch1.addConstraint(Sketcher.Constraint("Coincident", 65, 3, 53, 3))
sketch1.addConstraint(Sketcher.Constraint("Coincident", 73, 3, 69, 3))
sketch1.addConstraint(Sketcher.Constraint("Coincident", 77, 3, 69, 3))
sketch1.addConstraint(Sketcher.Constraint("Coincident", 81, 3, 69, 3))
sketch1.addConstraint(Sketcher.Constraint("Equal", 5, 9))
sketch1.addConstraint(Sketcher.Constraint("Equal", 7, 11))
sketch1.addConstraint(Sketcher.Constraint("Equal", 9, 13))
sketch1.addConstraint(Sketcher.Constraint("Equal", 11, 15))
sketch1.addConstraint(Sketcher.Constraint("Equal", 13, 17))
sketch1.addConstraint(Sketcher.Constraint("Equal", 15, 19))
sketch1.addConstraint(Sketcher.Constraint("Equal", 17, 21))
sketch1.addConstraint(Sketcher.Constraint("Equal", 19, 23))
sketch1.addConstraint(Sketcher.Constraint("Equal", 21, 25))
sketch1.addConstraint(Sketcher.Constraint("Equal", 23, 27))
sketch1.addConstraint(Sketcher.Constraint("Equal", 25, 29))
sketch1.addConstraint(Sketcher.Constraint("Equal", 27, 31))
sketch1.addConstraint(Sketcher.Constraint("Equal", 29, 33))
sketch1.addConstraint(Sketcher.Constraint("Equal", 31, 35))
sketch1.addConstraint(Sketcher.Constraint("Equal", 33, 37))
sketch1.addConstraint(Sketcher.Constraint("Equal", 35, 39))
sketch1.addConstraint(Sketcher.Constraint("Equal", 37, 41))
sketch1.addConstraint(Sketcher.Constraint("Equal", 39, 43))
sketch1.addConstraint(Sketcher.Constraint("Equal", 41, 45))
sketch1.addConstraint(Sketcher.Constraint("Equal", 43, 47))
sketch1.addConstraint(Sketcher.Constraint("Equal", 45, 49))
sketch1.addConstraint(Sketcher.Constraint("Equal", 47, 51))
sketch1.addConstraint(Sketcher.Constraint("Equal", 49, 53))
sketch1.addConstraint(Sketcher.Constraint("Equal", 51, 55))
sketch1.addConstraint(Sketcher.Constraint("Equal", 53, 57))
sketch1.addConstraint(Sketcher.Constraint("Equal", 55, 59))
sketch1.addConstraint(Sketcher.Constraint("Equal", 57, 61))
sketch1.addConstraint(Sketcher.Constraint("Equal", 59, 63))
sketch1.addConstraint(Sketcher.Constraint("Equal", 61, 65))
sketch1.addConstraint(Sketcher.Constraint("Equal", 63, 67))
sketch1.addConstraint(Sketcher.Constraint("Equal", 65, 69))
sketch1.addConstraint(Sketcher.Constraint("Equal", 67, 71))
sketch1.addConstraint(Sketcher.Constraint("Equal", 69, 73))
sketch1.addConstraint(Sketcher.Constraint("Equal", 71, 75))
sketch1.addConstraint(Sketcher.Constraint("Equal", 73, 77))
sketch1.addConstraint(Sketcher.Constraint("Equal", 75, 79))
sketch1.addConstraint(Sketcher.Constraint("Equal", 77, 81))
sketch1.addConstraint(Sketcher.Constraint("Equal", 79, 83))
sketch1.addConstraint(Sketcher.Constraint("Symmetric", 0, 2, 2, 2, -1, 1))
sketch1.addConstraint(Sketcher.Constraint("Symmetric", 75, 3, 79, 3, -2))
sketch1.addConstraint(Sketcher.Constraint("Symmetric", 71, 3, 83, 3, -2))
sketch1.addConstraint(Sketcher.Constraint("PointOnObject", 69, 3, -2))
sketch1.addConstraint(Sketcher.Constraint("Horizontal", 11, 3, 15, 3))
sketch1.addConstraint(Sketcher.Constraint("Horizontal", 7, 3, 19, 3))
sketch1.addConstraint(Sketcher.Constraint("Horizontal", 5, 3, 21, 3))
sketch1.addConstraint(Sketcher.Constraint("Horizontal", 19, 3, 23, 3))
sketch1.addConstraint(Sketcher.Constraint("Horizontal", 15, 3, 27, 3))
sketch1.addConstraint(Sketcher.Constraint("Horizontal", 27, 3, 31, 3))
sketch1.addConstraint(Sketcher.Constraint("Horizontal", 23, 3, 35, 3))
sketch1.addConstraint(Sketcher.Constraint("Horizontal", 21, 3, 37, 3))
sketch1.addConstraint(Sketcher.Constraint("Horizontal", 35, 3, 39, 3))
sketch1.addConstraint(Sketcher.Constraint("Horizontal", 31, 3, 43, 3))
sketch1.addConstraint(Sketcher.Constraint("Horizontal", 43, 3, 47, 3))
sketch1.addConstraint(Sketcher.Constraint("Horizontal", 39, 3, 51, 3))
sketch1.addConstraint(Sketcher.Constraint("Horizontal", 37, 3, 53, 3))
sketch1.addConstraint(Sketcher.Constraint("Horizontal", 51, 3, 55, 3))
sketch1.addConstraint(Sketcher.Constraint("Horizontal", 47, 3, 59, 3))
sketch1.addConstraint(Sketcher.Constraint("Horizontal", 59, 3, 63, 3))
sketch1.addConstraint(Sketcher.Constraint("Horizontal", 55, 3, 67, 3))
sketch1.addConstraint(Sketcher.Constraint("Horizontal", 53, 3, 69, 3))
sketch1.addConstraint(Sketcher.Constraint("Horizontal", 67, 3, 71, 3))
sketch1.addConstraint(Sketcher.Constraint("Horizontal", 63, 3, 75, 3))
sketch1.addConstraint(Sketcher.Constraint("Horizontal", 4, 2, 5, 1))
sketch1.addConstraint(Sketcher.Constraint("Horizontal", 12, 2, 13, 1))
sketch1.addConstraint(Sketcher.Constraint("Horizontal", 5, 1, 20, 2))
sketch1.addConstraint(Sketcher.Constraint("Horizontal", 20, 2, 21, 1))
sketch1.addConstraint(Sketcher.Constraint("Horizontal", 13, 1, 28, 2))
sketch1.addConstraint(Sketcher.Constraint("Horizontal", 28, 2, 29, 1))
sketch1.addConstraint(Sketcher.Constraint("Horizontal", 21, 1, 36, 2))
sketch1.addConstraint(Sketcher.Constraint("Horizontal", 36, 2, 37, 1))
sketch1.addConstraint(Sketcher.Constraint("Horizontal", 29, 1, 44, 2))
sketch1.addConstraint(Sketcher.Constraint("Horizontal", 44, 2, 45, 1))
sketch1.addConstraint(Sketcher.Constraint("Horizontal", 37, 1, 52, 2))
sketch1.addConstraint(Sketcher.Constraint("Horizontal", 52, 2, 53, 1))
sketch1.addConstraint(Sketcher.Constraint("Horizontal", 45, 1, 60, 2))
sketch1.addConstraint(Sketcher.Constraint("Horizontal", 60, 2, 61, 1))
sketch1.addConstraint(Sketcher.Constraint("Horizontal", 53, 1, 68, 2))
sketch1.addConstraint(Sketcher.Constraint("Horizontal", 61, 1, 76, 2))
sketch1.addConstraint(Sketcher.Constraint("Vertical", 7, 3, 11, 3))
sketch1.addConstraint(Sketcher.Constraint("Vertical", 8, 2, 9, 1))
sketch1.addConstraint(Sketcher.Constraint("Equal", 82, 4))
sketch1.addConstraint(Sketcher.Constraint("Radius", 7, 0.3))
sketch1.addConstraint(Sketcher.Constraint("DistanceX", 5, 3, -1, 1, 32.0))
sketch1.addConstraint(Sketcher.Constraint("DistanceY", -1, 1, 9, 3, 40.0))
sketch1.addConstraint(Sketcher.Constraint("DistanceX", 21, 3, -1, 1, 24.0))
sketch1.addConstraint(Sketcher.Constraint("DistanceX", 37, 3, -1, 1, 16.0))
sketch1.addConstraint(Sketcher.Constraint("DistanceX", 53, 3, -1, 1, 8.0))
sketch1.addConstraint(Sketcher.Constraint("DistanceX", 1, 1, 1, 2, 71.85))
sketch1.addConstraint(Sketcher.Constraint("DistanceY", 0, 2, 0, 1, 87.85))
sketch1.addConstraint(Sketcher.Constraint("DistanceX", 7, 3, -1, 1, 30.9))
sketch1.addConstraint(Sketcher.Constraint("Radius", 5, 2.324998))
pad1 = body.newObject("PartDesign::Pad", "Pad")
pad1.Profile = sketch1
pad1.Length = 3

doc.recompute()
